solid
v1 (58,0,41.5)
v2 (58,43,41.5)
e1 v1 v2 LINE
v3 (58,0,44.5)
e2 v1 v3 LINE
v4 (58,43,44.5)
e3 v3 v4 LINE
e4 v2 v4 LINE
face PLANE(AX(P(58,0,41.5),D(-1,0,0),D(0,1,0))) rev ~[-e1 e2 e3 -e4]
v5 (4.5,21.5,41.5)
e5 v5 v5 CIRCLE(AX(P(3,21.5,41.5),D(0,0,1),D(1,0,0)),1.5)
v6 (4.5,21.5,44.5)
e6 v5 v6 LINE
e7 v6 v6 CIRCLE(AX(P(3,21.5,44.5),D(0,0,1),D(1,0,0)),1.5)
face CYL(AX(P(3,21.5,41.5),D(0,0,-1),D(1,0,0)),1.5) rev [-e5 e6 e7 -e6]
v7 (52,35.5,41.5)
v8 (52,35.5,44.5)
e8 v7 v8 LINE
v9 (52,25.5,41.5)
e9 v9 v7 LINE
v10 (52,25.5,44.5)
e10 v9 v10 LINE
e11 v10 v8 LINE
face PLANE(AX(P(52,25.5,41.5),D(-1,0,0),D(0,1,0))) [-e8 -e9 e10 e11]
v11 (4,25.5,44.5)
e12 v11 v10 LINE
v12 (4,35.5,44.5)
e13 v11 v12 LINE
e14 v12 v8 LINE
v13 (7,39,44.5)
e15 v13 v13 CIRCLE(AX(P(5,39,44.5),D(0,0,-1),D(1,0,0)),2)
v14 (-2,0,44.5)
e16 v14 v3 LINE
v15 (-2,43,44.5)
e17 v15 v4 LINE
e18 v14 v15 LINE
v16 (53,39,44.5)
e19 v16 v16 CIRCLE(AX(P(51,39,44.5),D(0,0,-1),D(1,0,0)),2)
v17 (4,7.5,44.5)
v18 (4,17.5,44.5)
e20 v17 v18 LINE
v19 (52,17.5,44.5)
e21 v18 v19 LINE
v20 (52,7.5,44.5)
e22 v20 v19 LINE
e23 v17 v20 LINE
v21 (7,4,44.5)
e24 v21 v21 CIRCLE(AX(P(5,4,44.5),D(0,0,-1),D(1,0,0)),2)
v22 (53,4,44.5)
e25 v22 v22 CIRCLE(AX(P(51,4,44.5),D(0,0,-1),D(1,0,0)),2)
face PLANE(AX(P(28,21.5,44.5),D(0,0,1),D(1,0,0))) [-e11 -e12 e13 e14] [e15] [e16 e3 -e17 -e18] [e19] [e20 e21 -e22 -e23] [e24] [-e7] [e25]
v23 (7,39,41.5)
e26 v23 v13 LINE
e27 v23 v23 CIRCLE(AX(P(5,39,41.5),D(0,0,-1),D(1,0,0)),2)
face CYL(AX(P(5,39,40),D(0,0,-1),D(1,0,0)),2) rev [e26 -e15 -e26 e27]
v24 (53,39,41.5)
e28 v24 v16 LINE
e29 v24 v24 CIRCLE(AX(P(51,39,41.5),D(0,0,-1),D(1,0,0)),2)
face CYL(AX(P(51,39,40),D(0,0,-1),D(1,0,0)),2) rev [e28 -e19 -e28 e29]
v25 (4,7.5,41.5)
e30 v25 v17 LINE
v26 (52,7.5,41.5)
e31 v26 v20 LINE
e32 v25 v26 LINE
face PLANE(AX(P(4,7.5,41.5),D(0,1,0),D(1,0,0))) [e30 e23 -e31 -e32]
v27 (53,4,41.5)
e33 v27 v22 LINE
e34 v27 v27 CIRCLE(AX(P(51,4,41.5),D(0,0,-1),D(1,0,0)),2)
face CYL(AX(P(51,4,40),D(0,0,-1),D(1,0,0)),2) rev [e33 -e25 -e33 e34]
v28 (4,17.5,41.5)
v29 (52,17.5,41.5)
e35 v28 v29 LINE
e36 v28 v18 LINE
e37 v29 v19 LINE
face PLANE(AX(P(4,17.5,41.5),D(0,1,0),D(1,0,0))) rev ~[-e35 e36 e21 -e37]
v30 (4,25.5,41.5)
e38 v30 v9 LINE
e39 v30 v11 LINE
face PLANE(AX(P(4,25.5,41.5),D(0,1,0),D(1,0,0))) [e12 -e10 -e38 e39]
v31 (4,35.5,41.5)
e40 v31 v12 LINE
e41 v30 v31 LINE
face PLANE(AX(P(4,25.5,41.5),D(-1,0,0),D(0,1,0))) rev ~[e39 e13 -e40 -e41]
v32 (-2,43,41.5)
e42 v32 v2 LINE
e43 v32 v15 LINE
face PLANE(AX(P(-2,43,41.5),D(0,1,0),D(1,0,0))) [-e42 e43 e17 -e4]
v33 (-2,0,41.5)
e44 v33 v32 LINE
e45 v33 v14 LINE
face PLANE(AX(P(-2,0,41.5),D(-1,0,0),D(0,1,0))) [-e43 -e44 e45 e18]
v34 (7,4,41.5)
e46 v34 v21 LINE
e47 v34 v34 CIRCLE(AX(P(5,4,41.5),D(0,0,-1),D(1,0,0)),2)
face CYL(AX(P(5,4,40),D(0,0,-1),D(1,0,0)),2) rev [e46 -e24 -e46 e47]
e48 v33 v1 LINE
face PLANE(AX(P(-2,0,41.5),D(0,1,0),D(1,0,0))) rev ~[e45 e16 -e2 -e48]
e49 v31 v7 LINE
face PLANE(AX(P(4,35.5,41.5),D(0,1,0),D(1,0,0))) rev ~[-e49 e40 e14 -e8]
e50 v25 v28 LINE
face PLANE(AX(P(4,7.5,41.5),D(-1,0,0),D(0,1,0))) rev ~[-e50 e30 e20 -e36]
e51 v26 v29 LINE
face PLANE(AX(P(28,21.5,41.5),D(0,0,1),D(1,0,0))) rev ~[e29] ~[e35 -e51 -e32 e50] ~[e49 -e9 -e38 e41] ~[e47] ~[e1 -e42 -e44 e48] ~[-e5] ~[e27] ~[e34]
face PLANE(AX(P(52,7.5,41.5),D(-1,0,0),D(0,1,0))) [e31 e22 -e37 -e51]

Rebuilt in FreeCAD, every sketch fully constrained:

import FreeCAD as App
import Part
import Sketcher


def add_polygon(sketch, points):
    """Adds a closed chain of lines whose ends are joined by coincident constraints."""
    first, n = sketch.GeometryCount, len(points)
    for a, b in zip(points, points[1:] + points[:1]):
        sketch.addGeometry(Part.LineSegment(App.Vector(*a, 0), App.Vector(*b, 0)), False)
    for i in range(n):
        sketch.addConstraint(Sketcher.Constraint("Coincident", first + i, 2, first + (i + 1) % n, 1))

doc = App.newDocument("Part")
body = doc.addObject("PartDesign::Body", "Body")

# Sketch on XY plane
sketch1 = body.newObject("Sketcher::SketchObject", "Sketch")
sketch1.AttachmentSupport = (doc.getObject("XY_Plane"), [""])
sketch1.MapMode = "FlatFace"
sketch1.AttachmentOffset = App.Placement(App.Vector(0, 0, 40), App.Rotation())
sketch1.addGeometry(Part.Circle(App.Vector(5, 39, 0), App.Vector(0, 0, 1), 2), False)
sketch1.addConstraint([
    Sketcher.Constraint("Diameter", 0, 4.0),
    Sketcher.Constraint("DistanceX", -1, 1, 0, 3, 5.0),
    Sketcher.Constraint("DistanceY", -1, 1, 0, 3, 39.0),
])
pad1 = body.newObject("PartDesign::Pad", "Pad")
pad1.Profile = sketch1
pad1.Length = 10
body2 = doc.addObject("PartDesign::Body", "Body001")

# Sketch on XY plane
sketch2 = body2.newObject("Sketcher::SketchObject", "Sketch001")
sketch2.AttachmentSupport = (doc.getObject("XY_Plane001"), [""])
sketch2.MapMode = "FlatFace"
sketch2.AttachmentOffset = App.Placement(App.Vector(0, 0, 40), App.Rotation())
sketch2.addGeometry(Part.Circle(App.Vector(51, 39, 0), App.Vector(0, 0, 1), 2), False)
sketch2.addConstraint([
    Sketcher.Constraint("Diameter", 0, 4.0),
    Sketcher.Constraint("DistanceX", -1, 1, 0, 3, 51.0),
    Sketcher.Constraint("DistanceY", -1, 1, 0, 3, 39.0),
])
pad2 = body2.newObject("PartDesign::Pad", "Pad001")
pad2.Profile = sketch2
pad2.Length = 10
body3 = doc.addObject("PartDesign::Body", "Body002")

# Sketch on XY plane
sketch3 = body3.newObject("Sketcher::SketchObject", "Sketch002")
sketch3.AttachmentSupport = (doc.getObject("XY_Plane002"), [""])
sketch3.MapMode = "FlatFace"
sketch3.AttachmentOffset = App.Placement(App.Vector(0, 0, 40), App.Rotation())
sketch3.addGeometry(Part.Circle(App.Vector(51, 4, 0), App.Vector(0, 0, 1), 2), False)
sketch3.addConstraint([
    Sketcher.Constraint("Diameter", 0, 4.0),
    Sketcher.Constraint("DistanceX", -1, 1, 0, 3, 51.0),
    Sketcher.Constraint("DistanceY", -1, 1, 0, 3, 4.0),
])
pad3 = body3.newObject("PartDesign::Pad", "Pad002")
pad3.Profile = sketch3
pad3.Length = 10
body4 = doc.addObject("PartDesign::Body", "Body003")
body4.AllowCompound = True

# Sketch on XY plane
sketch4 = body4.newObject("Sketcher::SketchObject", "Sketch003")
sketch4.AttachmentSupport = (doc.getObject("XY_Plane003"), [""])
sketch4.MapMode = "FlatFace"
sketch4.AttachmentOffset = App.Placement(App.Vector(0, 0, 40), App.Rotation())
sketch4.addGeometry(Part.Circle(App.Vector(5, 4, 0), App.Vector(0, 0, 1), 2), False)
sketch4.addConstraint([
    Sketcher.Constraint("Diameter", 0, 4.0),
    Sketcher.Constraint("DistanceX", -1, 1, 0, 3, 5.0),
    Sketcher.Constraint("DistanceY", -1, 1, 0, 3, 4.0),
])
pad4 = body4.newObject("PartDesign::Pad", "Pad003")
pad4.Profile = sketch4
pad4.Length = 10
doc.recompute()

boolean = body4.newObject("PartDesign::Boolean", "Boolean")
boolean.Type = "Fuse"
boolean.addObjects([body])
doc.recompute()

boolean2 = body4.newObject("PartDesign::Boolean", "Boolean001")
boolean2.Type = "Fuse"
boolean2.addObjects([body2])
doc.recompute()

boolean3 = body4.newObject("PartDesign::Boolean", "Boolean002")
boolean3.Type = "Fuse"
boolean3.addObjects([body3])
body5 = doc.addObject("PartDesign::Body", "Body004")

# Sketch on XY plane
sketch5 = body5.newObject("Sketcher::SketchObject", "Sketch004")
sketch5.AttachmentSupport = (doc.getObject("XY_Plane004"), [""])
sketch5.MapMode = "FlatFace"
add_polygon(sketch5, [(-60, 43), (-60, 0), (0, 0), (0, 43)])  # lines 0-3
add_polygon(sketch5, [(-6, 7.5), (-54, 7.5), (-54, 17.5), (-6, 17.5)])  # lines 4-7
sketch5.addGeometry(Part.Circle(App.Vector(-55, 21.5, 0), App.Vector(0, 0, 1), 1.5), False)  # 8
add_polygon(sketch5, [(-6, 25.5), (-54, 25.5), (-54, 35.5), (-6, 35.5)])  # lines 9-12
sketch5.addConstraint([
    Sketcher.Constraint("Vertical", 0),
    Sketcher.Constraint("Horizontal", 1),
    Sketcher.Constraint("Vertical", 2),
    Sketcher.Constraint("Horizontal", 3),
    Sketcher.Constraint("Horizontal", 4),
    Sketcher.Constraint("Vertical", 5),
    Sketcher.Constraint("Horizontal", 6),
    Sketcher.Constraint("Vertical", 7),
    Sketcher.Constraint("Horizontal", 9),
    Sketcher.Constraint("Vertical", 10),
    Sketcher.Constraint("Horizontal", 11),
    Sketcher.Constraint("Vertical", 12),
    Sketcher.Constraint("Coincident", 1, 2, -1, 1),
    Sketcher.Constraint("Vertical", 5, 2, 9, 2),
    Sketcher.Constraint("Vertical", 7, 2, 11, 2),
    Sketcher.Constraint("Equal", 7, 10),
    Sketcher.Constraint("Diameter", 8, 3.0),
    Sketcher.Constraint("DistanceX", 1, 1, 1, 2, 60.0),
    Sketcher.Constraint("DistanceX", 4, 2, 4, 1, 48.0),
    Sketcher.Constraint("DistanceY", 0, 2, 0, 1, 43.0),
    Sketcher.Constraint("DistanceY", 5, 1, 5, 2, 10.0),
    Sketcher.Constraint("DistanceX", 8, 3, -1, 1, 55.0),
    Sketcher.Constraint("DistanceX", 4, 2, -1, 1, 54.0),
    Sketcher.Constraint("DistanceY", 4, 2, 8, 3, 14.0),
    Sketcher.Constraint("DistanceY", 8, 3, 9, 2, 4.0),
    Sketcher.Constraint("DistanceY", -1, 1, 8, 3, 21.5),
])
pad5 = body5.newObject("PartDesign::Pad", "Pad004")
pad5.Profile = sketch5
pad5.Length = 3
body6 = doc.addObject("PartDesign::Body", "Body005")
doc.recompute()

body5.Placement = App.Placement(App.Vector(58, 0, 41.5), App.Rotation(App.Vector(0, 0, 1), 0))
boolean4 = body6.newObject("PartDesign::Boolean", "Boolean003")
boolean4.Type = "Fuse"
boolean4.addObjects([body5])
doc.recompute()

boolean5 = body6.newObject("PartDesign::Boolean", "Boolean004")
boolean5.Type = "Cut"
boolean5.addObjects([body4])

doc.recompute()
